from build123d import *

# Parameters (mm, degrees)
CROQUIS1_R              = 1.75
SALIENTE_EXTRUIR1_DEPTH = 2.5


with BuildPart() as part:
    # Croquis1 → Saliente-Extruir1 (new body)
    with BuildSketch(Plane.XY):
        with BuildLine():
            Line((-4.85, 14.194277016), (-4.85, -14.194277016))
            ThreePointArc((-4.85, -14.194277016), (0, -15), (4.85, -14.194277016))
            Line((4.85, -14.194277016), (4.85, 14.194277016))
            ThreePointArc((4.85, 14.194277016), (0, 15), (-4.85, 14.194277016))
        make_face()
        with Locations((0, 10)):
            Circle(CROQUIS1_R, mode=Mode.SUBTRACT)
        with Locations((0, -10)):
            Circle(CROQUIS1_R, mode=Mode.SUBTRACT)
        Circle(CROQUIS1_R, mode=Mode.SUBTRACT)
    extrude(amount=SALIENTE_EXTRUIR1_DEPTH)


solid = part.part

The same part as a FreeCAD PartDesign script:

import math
import FreeCAD as App
import Part
import Sketcher
from FreeCAD import Vector

doc = App.newDocument("Part")
params = doc.addObject("Spreadsheet::Sheet", "Params")
for row, (alias, value) in enumerate([
    ("sketch1_radius", "15 mm"),
    ("sketch1_diameter", "3.5 mm"),
    ("pad1_length", "2.5 mm"),
], start=1):
    params.set(f"A{row}", alias)
    params.set(f"B{row}", "=" + value)
    params.setAlias(f"B{row}", alias)

body = doc.addObject("PartDesign::Body", "Body")

# Sketch on XY plane
sketch1 = doc.addObject("Sketcher::SketchObject", "Sketch")
body.addObject(sketch1)
sketch1.AttachmentSupport = (doc.XY_Plane, [""])
sketch1.MapMode = "FlatFace"
sketch1.addGeometry(Part.LineSegment(Vector(-4.85, 14.194277, 0), Vector(-4.85, -14.194277, 0)), False)
sketch1.addGeometry(Part.ArcOfCircle(Part.Circle(Vector(0, 0, 0), Vector(0, 0, 1), 15), math.radians(-108.864631), math.radians(-71.135369)), False)
sketch1.addGeometry(Part.LineSegment(Vector(4.85, -14.194277, 0), Vector(4.85, 14.194277, 0)), False)
sketch1.addGeometry(Part.ArcOfCircle(Part.Circle(Vector(0, 0, 0), Vector(0, 0, 1), 15), math.radians(71.135369), math.radians(108.864631)), False)
sketch1.addGeometry(Part.Circle(Vector(0, -10, 0), Vector(0, 0, 1), 1.75), False)
sketch1.addGeometry(Part.Circle(Vector(0, 0, 0), Vector(0, 0, 1), 1.75), False)
sketch1.addGeometry(Part.Circle(Vector(0, 10, 0), Vector(0, 0, 1), 1.75), False)
sketch1.addConstraint(Sketcher.Constraint("Coincident", 0, 2, 1, 1))
sketch1.addConstraint(Sketcher.Constraint("Coincident", 1, 2, 2, 1))
sketch1.addConstraint(Sketcher.Constraint("Coincident", 2, 2, 3, 1))
sketch1.addConstraint(Sketcher.Constraint("Coincident", 3, 2, 0, 1))
sketch1.addConstraint(Sketcher.Constraint("Vertical", 0))
sketch1.addConstraint(Sketcher.Constraint("Vertical", 2))
sketch1.addConstraint(Sketcher.Constraint("Coincident", 1, 3, -1, 1))
sketch1.addConstraint(Sketcher.Constraint("Coincident", 3, 3, -1, 1))
sketch1.addConstraint(Sketcher.Constraint("Coincident", 5, 3, -1, 1))
sketch1.addConstraint(Sketcher.Constraint("Equal", 1, 3))
sketch1.addConstraint(Sketcher.Constraint("Equal", 4, 5))
sketch1.addConstraint(Sketcher.Constraint("Equal", 5, 6))
sketch1.addConstraint(Sketcher.Constraint("Symmetric", 4, 3, 6, 3, -1, 1))
sketch1.addConstraint(Sketcher.Constraint("PointOnObject", 4, 3, -2))
sketch1.addConstraint(Sketcher.Constraint("Horizontal", 0, 2, 1, 2))
sketch1.addConstraint(Sketcher.Constraint("Radius", 1, 15.0))
sketch1.addConstraint(Sketcher.Constraint("Diameter", 4, 3.5))
sketch1.addConstraint(Sketcher.Constraint("DistanceY", 4, 3, -1, 1, 10.0))
sketch1.addConstraint(Sketcher.Constraint("DistanceX", 0, 2, 1, 2, 9.7))
sketch1.setExpression("Constraints[15]", "Params.sketch1_radius")
sketch1.setExpression("Constraints[16]", "Params.sketch1_diameter")
pad1 = doc.addObject("PartDesign::Pad", "Pad")
body.addObject(pad1)
pad1.Profile = sketch1
pad1.setExpression("Length", "Params.pad1_length")

doc.recompute()
